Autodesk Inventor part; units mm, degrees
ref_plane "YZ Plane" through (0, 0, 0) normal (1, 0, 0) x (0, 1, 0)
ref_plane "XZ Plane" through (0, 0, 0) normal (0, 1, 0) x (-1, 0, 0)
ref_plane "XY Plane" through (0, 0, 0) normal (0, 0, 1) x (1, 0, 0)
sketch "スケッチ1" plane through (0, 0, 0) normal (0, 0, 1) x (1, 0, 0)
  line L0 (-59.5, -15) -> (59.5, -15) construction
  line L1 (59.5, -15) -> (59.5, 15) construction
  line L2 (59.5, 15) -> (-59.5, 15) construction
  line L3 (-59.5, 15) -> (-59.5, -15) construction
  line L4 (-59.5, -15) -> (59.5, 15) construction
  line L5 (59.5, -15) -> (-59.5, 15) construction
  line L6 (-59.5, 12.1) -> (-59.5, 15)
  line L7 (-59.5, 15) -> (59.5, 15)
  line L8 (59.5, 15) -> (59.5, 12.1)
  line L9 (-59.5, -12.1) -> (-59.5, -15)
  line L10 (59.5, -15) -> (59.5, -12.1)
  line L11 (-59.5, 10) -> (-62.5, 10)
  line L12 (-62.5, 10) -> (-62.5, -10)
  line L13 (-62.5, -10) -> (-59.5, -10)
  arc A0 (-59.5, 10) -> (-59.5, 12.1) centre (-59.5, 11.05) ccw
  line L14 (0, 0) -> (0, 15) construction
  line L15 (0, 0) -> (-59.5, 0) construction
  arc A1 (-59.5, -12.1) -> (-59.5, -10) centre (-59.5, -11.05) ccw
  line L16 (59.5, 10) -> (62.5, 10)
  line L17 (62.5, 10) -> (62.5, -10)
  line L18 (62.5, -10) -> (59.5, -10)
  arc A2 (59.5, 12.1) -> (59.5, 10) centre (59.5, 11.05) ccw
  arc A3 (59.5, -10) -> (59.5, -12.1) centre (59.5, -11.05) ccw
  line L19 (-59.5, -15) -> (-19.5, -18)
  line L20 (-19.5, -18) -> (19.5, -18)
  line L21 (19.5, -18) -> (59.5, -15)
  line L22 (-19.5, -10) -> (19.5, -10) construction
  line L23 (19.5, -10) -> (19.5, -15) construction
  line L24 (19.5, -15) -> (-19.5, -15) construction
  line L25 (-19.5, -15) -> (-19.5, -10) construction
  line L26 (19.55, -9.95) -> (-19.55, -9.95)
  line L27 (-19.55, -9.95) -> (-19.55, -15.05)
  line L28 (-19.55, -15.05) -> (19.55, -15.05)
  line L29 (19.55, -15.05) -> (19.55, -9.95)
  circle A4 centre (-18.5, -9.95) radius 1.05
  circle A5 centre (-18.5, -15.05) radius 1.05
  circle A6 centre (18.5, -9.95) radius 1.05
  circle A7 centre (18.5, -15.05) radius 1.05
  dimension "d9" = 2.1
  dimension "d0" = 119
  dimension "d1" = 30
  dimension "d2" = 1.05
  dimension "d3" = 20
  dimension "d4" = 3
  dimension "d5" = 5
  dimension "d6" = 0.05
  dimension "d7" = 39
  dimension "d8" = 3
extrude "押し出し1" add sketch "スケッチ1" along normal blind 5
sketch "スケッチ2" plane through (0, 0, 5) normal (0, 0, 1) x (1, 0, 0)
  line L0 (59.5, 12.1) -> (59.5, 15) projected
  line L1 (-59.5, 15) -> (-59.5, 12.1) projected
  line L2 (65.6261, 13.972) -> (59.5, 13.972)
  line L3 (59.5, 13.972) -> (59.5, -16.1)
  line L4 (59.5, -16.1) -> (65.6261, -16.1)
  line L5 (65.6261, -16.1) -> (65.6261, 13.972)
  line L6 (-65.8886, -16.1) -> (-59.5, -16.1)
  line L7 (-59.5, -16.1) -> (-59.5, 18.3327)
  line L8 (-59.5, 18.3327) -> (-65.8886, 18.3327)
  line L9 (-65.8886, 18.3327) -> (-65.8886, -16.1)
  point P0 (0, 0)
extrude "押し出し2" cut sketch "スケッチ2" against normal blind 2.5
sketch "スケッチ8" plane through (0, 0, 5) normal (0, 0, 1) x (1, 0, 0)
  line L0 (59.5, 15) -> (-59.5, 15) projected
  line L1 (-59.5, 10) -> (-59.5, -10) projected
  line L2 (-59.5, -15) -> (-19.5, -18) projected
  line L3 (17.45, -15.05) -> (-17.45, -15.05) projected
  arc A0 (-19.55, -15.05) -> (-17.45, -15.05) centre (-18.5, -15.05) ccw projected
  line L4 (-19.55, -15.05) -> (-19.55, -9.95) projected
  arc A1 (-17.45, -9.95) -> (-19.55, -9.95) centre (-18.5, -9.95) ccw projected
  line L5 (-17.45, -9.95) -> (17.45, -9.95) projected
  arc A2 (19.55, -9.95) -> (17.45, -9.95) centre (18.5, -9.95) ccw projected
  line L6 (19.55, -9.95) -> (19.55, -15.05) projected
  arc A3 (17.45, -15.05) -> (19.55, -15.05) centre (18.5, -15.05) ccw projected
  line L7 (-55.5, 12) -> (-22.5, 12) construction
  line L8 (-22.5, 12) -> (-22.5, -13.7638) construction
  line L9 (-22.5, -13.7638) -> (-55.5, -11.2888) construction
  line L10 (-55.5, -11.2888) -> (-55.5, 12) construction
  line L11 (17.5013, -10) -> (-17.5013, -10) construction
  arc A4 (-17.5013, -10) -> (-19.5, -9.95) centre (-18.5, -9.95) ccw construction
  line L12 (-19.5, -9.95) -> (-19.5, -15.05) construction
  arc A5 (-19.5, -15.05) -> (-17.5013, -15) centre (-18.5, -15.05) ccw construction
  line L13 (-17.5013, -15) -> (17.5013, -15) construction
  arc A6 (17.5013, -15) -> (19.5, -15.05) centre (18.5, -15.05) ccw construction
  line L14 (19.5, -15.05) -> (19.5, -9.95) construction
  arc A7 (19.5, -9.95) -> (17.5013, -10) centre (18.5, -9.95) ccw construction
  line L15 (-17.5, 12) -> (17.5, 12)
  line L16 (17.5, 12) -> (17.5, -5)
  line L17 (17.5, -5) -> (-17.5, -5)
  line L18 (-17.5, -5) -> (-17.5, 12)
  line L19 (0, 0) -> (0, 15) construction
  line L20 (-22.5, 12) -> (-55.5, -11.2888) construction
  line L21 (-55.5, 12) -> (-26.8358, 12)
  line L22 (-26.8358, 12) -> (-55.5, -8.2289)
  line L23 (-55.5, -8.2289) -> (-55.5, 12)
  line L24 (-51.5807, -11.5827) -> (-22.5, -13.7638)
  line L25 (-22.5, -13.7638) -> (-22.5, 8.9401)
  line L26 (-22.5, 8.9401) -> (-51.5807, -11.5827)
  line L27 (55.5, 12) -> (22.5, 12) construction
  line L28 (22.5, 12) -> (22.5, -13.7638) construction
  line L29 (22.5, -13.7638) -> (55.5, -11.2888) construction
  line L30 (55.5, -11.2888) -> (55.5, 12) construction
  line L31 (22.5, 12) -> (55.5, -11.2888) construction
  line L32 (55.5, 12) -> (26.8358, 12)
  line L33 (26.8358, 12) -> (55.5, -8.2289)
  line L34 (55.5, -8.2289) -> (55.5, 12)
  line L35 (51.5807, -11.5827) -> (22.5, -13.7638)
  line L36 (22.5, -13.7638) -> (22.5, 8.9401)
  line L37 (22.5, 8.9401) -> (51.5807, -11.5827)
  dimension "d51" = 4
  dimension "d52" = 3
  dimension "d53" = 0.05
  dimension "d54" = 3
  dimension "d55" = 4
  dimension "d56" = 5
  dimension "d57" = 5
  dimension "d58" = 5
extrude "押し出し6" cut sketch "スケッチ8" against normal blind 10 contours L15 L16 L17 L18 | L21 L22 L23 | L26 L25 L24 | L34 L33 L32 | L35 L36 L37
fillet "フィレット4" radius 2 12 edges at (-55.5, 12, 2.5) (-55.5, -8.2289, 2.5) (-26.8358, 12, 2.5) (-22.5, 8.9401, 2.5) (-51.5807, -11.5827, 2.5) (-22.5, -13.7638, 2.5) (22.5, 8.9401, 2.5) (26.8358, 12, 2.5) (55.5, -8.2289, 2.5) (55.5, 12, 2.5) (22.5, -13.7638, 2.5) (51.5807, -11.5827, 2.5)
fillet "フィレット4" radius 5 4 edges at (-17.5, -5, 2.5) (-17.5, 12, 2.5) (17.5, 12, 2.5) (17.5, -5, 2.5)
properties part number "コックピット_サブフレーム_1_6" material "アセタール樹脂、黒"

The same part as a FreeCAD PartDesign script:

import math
import FreeCAD as App
import Part
import Sketcher
Q = App.Units.Quantity


def edges_at(feature, points):
    """Names of the edges that pass closest to the given points."""
    edges = feature.Shape.Edges
    near = lambda p: min(range(len(edges)), key=lambda i: edges[i].distToShape(Part.Vertex(*p))[0])
    return sorted({f"Edge{near(p) + 1}" for p in points})

doc = App.newDocument("Part")
body = doc.addObject("PartDesign::Body", "Body")

# Sketch on XY plane
sketch1 = body.newObject("Sketcher::SketchObject", "Sketch")
sketch1.AttachmentSupport = (doc.getObject("XY_Plane"), [""])
sketch1.MapMode = "FlatFace"
sketch1.addGeometry([
    Part.LineSegment(App.Vector(-59.5, 15, 0), App.Vector(-59.5, 12.1, 0)),  # 0
    Part.ArcOfCircle(Part.Circle(App.Vector(-59.5, 11.1, 0), App.Vector(0, 0, 1), 1.1), math.radians(-90), math.radians(90)),  # 1
    Part.LineSegment(App.Vector(-59.5, 10, 0), App.Vector(-62.5, 10, 0)),  # 2
    Part.LineSegment(App.Vector(-62.5, 10, 0), App.Vector(-62.5, -10, 0)),  # 3
    Part.LineSegment(App.Vector(-62.5, -10, 0), App.Vector(-59.5, -10, 0)),  # 4
    Part.ArcOfCircle(Part.Circle(App.Vector(-59.5, -11.1, 0), App.Vector(0, 0, 1), 1), math.radians(-90), math.radians(90)),  # 5
    Part.LineSegment(App.Vector(-59.5, -12.1, 0), App.Vector(-59.5, -15, 0)),  # 6
    Part.LineSegment(App.Vector(-59.5, -15, 0), App.Vector(-19.5, -18, 0)),  # 7
    Part.LineSegment(App.Vector(-19.5, -18, 0), App.Vector(19.5, -18, 0)),  # 8
    Part.LineSegment(App.Vector(19.5, -18, 0), App.Vector(59.5, -15, 0)),  # 9
    Part.LineSegment(App.Vector(59.5, -15, 0), App.Vector(59.5, -12.1, 0)),  # 10
    Part.ArcOfCircle(Part.Circle(App.Vector(59.5, -11.1, 0), App.Vector(0, 0, 1), 1.1), math.radians(90), math.radians(270)),  # 11
    Part.LineSegment(App.Vector(59.5, -10, 0), App.Vector(62.5, -10, 0)),  # 12
    Part.LineSegment(App.Vector(62.5, -10, 0), App.Vector(62.5, 10, 0)),  # 13
    Part.LineSegment(App.Vector(62.5, 10, 0), App.Vector(59.5, 10, 0)),  # 14
    Part.ArcOfCircle(Part.Circle(App.Vector(59.5, 11.1, 0), App.Vector(0, 0, 1), 1), math.radians(90), math.radians(270)),  # 15
    Part.LineSegment(App.Vector(59.5, 12.1, 0), App.Vector(59.5, 15, 0)),  # 16
    Part.LineSegment(App.Vector(59.5, 15, 0), App.Vector(-59.5, 15, 0)),  # 17
    Part.ArcOfCircle(Part.Circle(App.Vector(-18.5, -9.9, 0), App.Vector(0, 0, 1), 1.1), math.radians(0), math.radians(180)),  # 18
    Part.LineSegment(App.Vector(-17.4, -9.9, 0), App.Vector(17.4, -9.9, 0)),  # 19
    Part.ArcOfCircle(Part.Circle(App.Vector(18.5, -9.9, 0), App.Vector(0, 0, 1), 1.1), math.radians(0), math.radians(180)),  # 20
    Part.LineSegment(App.Vector(19.6, -9.9, 0), App.Vector(19.6, -15.1, 0)),  # 21
    Part.ArcOfCircle(Part.Circle(App.Vector(18.5, -15.1, 0), App.Vector(0, 0, 1), 1.1), math.radians(180), math.radians(360)),  # 22
    Part.LineSegment(App.Vector(17.4, -15.1, 0), App.Vector(-17.4, -15.1, 0)),  # 23
    Part.ArcOfCircle(Part.Circle(App.Vector(-18.5, -15.1, 0), App.Vector(0, 0, 1), 1.1), math.radians(180), math.radians(360)),  # 24
    Part.LineSegment(App.Vector(-19.6, -15.1, 0), App.Vector(-19.6, -9.9, 0)),  # 25
], False)
sketch1.addConstraint([
    Sketcher.Constraint("Coincident", 0, 2, 1, 2),
    Sketcher.Constraint("Tangent", 1, 1, 2, 1),
    Sketcher.Constraint("Coincident", 2, 2, 3, 1),
    Sketcher.Constraint("Coincident", 3, 2, 4, 1),
    Sketcher.Constraint("Tangent", 4, 2, 5, 2),
    Sketcher.Constraint("Coincident", 5, 1, 6, 1),
    Sketcher.Constraint("Coincident", 6, 2, 7, 1),
    Sketcher.Constraint("Coincident", 7, 2, 8, 1),
    Sketcher.Constraint("Coincident", 8, 2, 9, 1),
    Sketcher.Constraint("Coincident", 9, 2, 10, 1),
    Sketcher.Constraint("Coincident", 10, 2, 11, 2),
    Sketcher.Constraint("Tangent", 11, 1, 12, 1),
    Sketcher.Constraint("Coincident", 12, 2, 13, 1),
    Sketcher.Constraint("Coincident", 13, 2, 14, 1),
    Sketcher.Constraint("Tangent", 14, 2, 15, 2),
    Sketcher.Constraint("Coincident", 15, 1, 16, 1),
    Sketcher.Constraint("Coincident", 16, 2, 17, 1),
    Sketcher.Constraint("Coincident", 17, 2, 0, 1),
    Sketcher.Constraint("Coincident", 18, 1, 19, 1),
    Sketcher.Constraint("Coincident", 19, 2, 20, 2),
    Sketcher.Constraint("Tangent", 20, 1, 21, 1),
    Sketcher.Constraint("Tangent", 21, 2, 22, 2),
    Sketcher.Constraint("Coincident", 22, 1, 23, 1),
    Sketcher.Constraint("Coincident", 23, 2, 24, 2),
    Sketcher.Constraint("Tangent", 24, 1, 25, 1),
    Sketcher.Constraint("Tangent", 25, 2, 18, 2),
    Sketcher.Constraint("Vertical", 0),
    Sketcher.Constraint("Horizontal", 2),
    Sketcher.Constraint("Vertical", 3),
    Sketcher.Constraint("Horizontal", 4),
    Sketcher.Constraint("Vertical", 6),
    Sketcher.Constraint("Horizontal", 8),
    Sketcher.Constraint("Vertical", 10),
    Sketcher.Constraint("Horizontal", 12),
    Sketcher.Constraint("Vertical", 13),
    Sketcher.Constraint("Horizontal", 14),
    Sketcher.Constraint("Vertical", 16),
    Sketcher.Constraint("Horizontal", 17),
    Sketcher.Constraint("Horizontal", 19),
    Sketcher.Constraint("Vertical", 21),
    Sketcher.Constraint("Horizontal", 23),
    Sketcher.Constraint("Vertical", 25),
    Sketcher.Constraint("Equal", 1, 5),
    Sketcher.Constraint("Equal", 5, 11),
    Sketcher.Constraint("Equal", 11, 15),
    Sketcher.Constraint("Equal", 15, 18),
    Sketcher.Constraint("Equal", 18, 20),
    Sketcher.Constraint("Equal", 20, 22),
    Sketcher.Constraint("Equal", 22, 24),
    Sketcher.Constraint("Symmetric", 1, 3, 11, 3, -1, 1),
    Sketcher.Constraint("Symmetric", 5, 3, 15, 3, -1, 1),
    Sketcher.Constraint("Symmetric", 6, 2, 16, 2, -1, 1),
    Sketcher.Constraint("Symmetric", 9, 2, 17, 2, -1, 1),
    Sketcher.Constraint("Symmetric", 5, 3, 11, 3, -2),
    Sketcher.Constraint("Symmetric", 18, 3, 20, 3, -2),
    Sketcher.Constraint("Horizontal", 22, 3, 24, 3),
    Sketcher.Constraint("Horizontal", 20, 3, 18, 1),
    Sketcher.Constraint("Horizontal", 21, 2, 22, 1),
    Sketcher.Constraint("Vertical", 5, 3, 0, 2),
    Sketcher.Constraint("Vertical", 4, 2, 5, 1),
    Sketcher.Constraint("Equal", 4, 12),
    Sketcher.Constraint("Equal", 7, 9),
    Sketcher.Constraint("DistanceX", 2, 2, 2, 1, Q("3 mm")),
    Sketcher.Constraint("DistanceX", 8, 1, 8, 2, Q("39 mm")),
    Sketcher.Constraint("DistanceX", 17, 2, 17, 1, Q("119 mm")),
    Sketcher.Constraint("DistanceY", 3, 2, 3, 1, Q("20 mm")),
    Sketcher.Constraint("Radius", 1, Q("1.05 mm")),
    Sketcher.Constraint("DistanceY", 6, 2, 4, 2, Q("5 mm")),
    Sketcher.Constraint("DistanceY", 7, 2, 6, 2, Q("3 mm")),
    Sketcher.Constraint("DistanceY", 22, 3, 9, 2, Q("0.05 mm")),
    Sketcher.Constraint("DistanceX", 8, 2, 20, 1, Q("0.05 mm")),
    Sketcher.Constraint("DistanceY", 21, 2, 21, 1, Q("5.1 mm")),
])
pad1 = body.newObject("PartDesign::Pad", "Pad")
pad1.Profile = sketch1
pad1.Length = 5

# Sketch on XY plane
sketch2 = body.newObject("Sketcher::SketchObject", "Sketch001")
sketch2.AttachmentSupport = (doc.getObject("XY_Plane"), [""])
sketch2.MapMode = "FlatFace"
sketch2.AttachmentOffset = App.Placement(App.Vector(0, 0, 5), App.Rotation())
sketch2.addGeometry([
    Part.LineSegment(App.Vector(60, 14, 0), App.Vector(60, -16, 0)),  # 0
    Part.LineSegment(App.Vector(60, -16, 0), App.Vector(66, -16, 0)),  # 1
    Part.LineSegment(App.Vector(66, -16, 0), App.Vector(66, 14, 0)),  # 2
    Part.LineSegment(App.Vector(66, 14, 0), App.Vector(60, 14, 0)),  # 3
    Part.LineSegment(App.Vector(-60, -16, 0), App.Vector(-60, 18, 0)),  # 4
    Part.LineSegment(App.Vector(-60, 18, 0), App.Vector(-66, 18, 0)),  # 5
    Part.LineSegment(App.Vector(-66, 18, 0), App.Vector(-66, -16, 0)),  # 6
    Part.LineSegment(App.Vector(-66, -16, 0), App.Vector(-60, -16, 0)),  # 7
], False)
sketch2.addConstraint([
    Sketcher.Constraint("Coincident", 0, 2, 1, 1),
    Sketcher.Constraint("Coincident", 1, 2, 2, 1),
    Sketcher.Constraint("Coincident", 2, 2, 3, 1),
    Sketcher.Constraint("Coincident", 3, 2, 0, 1),
    Sketcher.Constraint("Coincident", 4, 2, 5, 1),
    Sketcher.Constraint("Coincident", 5, 2, 6, 1),
    Sketcher.Constraint("Coincident", 6, 2, 7, 1),
    Sketcher.Constraint("Coincident", 7, 2, 4, 1),
    Sketcher.Constraint("Vertical", 0),
    Sketcher.Constraint("Horizontal", 1),
    Sketcher.Constraint("Vertical", 2),
    Sketcher.Constraint("Horizontal", 3),
    Sketcher.Constraint("Vertical", 4),
    Sketcher.Constraint("Horizontal", 5),
    Sketcher.Constraint("Vertical", 6),
    Sketcher.Constraint("Horizontal", 7),
    Sketcher.Constraint("Symmetric", 0, 2, 7, 2, -2),
    Sketcher.Constraint("DistanceX", 4, 2, 3, 2, Q("119 mm")),
    Sketcher.Constraint("DistanceY", 0, 2, -1, 1, Q("16.1 mm")),
    Sketcher.Constraint("DistanceX", 1, 1, 1, 2, Q("6.126 mm")),
    Sketcher.Constraint("DistanceY", 0, 2, 0, 1, Q("30.072 mm")),
    Sketcher.Constraint("DistanceX", 5, 2, 5, 1, Q("6.3886 mm")),
    Sketcher.Constraint("DistanceY", 4, 1, 4, 2, Q("34.4327 mm")),
])
pocket1 = body.newObject("PartDesign::Pocket", "Pocket")
pocket1.Profile = sketch2
pocket1.Length = 2.5

# Sketch on XY plane
sketch3 = body.newObject("Sketcher::SketchObject", "Sketch002")
sketch3.AttachmentSupport = (doc.getObject("XY_Plane"), [""])
sketch3.MapMode = "FlatFace"
sketch3.AttachmentOffset = App.Placement(App.Vector(0, 0, 5), App.Rotation())
sketch3.addGeometry([
    Part.LineSegment(App.Vector(18, 12, 0), App.Vector(-18, 12, 0)),  # 0
    Part.LineSegment(App.Vector(-18, 12, 0), App.Vector(-18, -5, 0)),  # 1
    Part.LineSegment(App.Vector(-18, -5, 0), App.Vector(18, -5, 0)),  # 2
    Part.LineSegment(App.Vector(18, -5, 0), App.Vector(18, 12, 0)),  # 3
    Part.LineSegment(App.Vector(-27, 12, 0), App.Vector(-56, 12, 0)),  # 4
    Part.LineSegment(App.Vector(-56, 12, 0), App.Vector(-56, -8, 0)),  # 5
    Part.LineSegment(App.Vector(-56, -8, 0), App.Vector(-27, 12, 0)),  # 6
    Part.LineSegment(App.Vector(-22, 9, 0), App.Vector(-52, -12, 0)),  # 7
    Part.LineSegment(App.Vector(-52, -12, 0), App.Vector(-22, -14, 0)),  # 8
    Part.LineSegment(App.Vector(-22, -14, 0), App.Vector(-22, 9, 0)),  # 9
    Part.LineSegment(App.Vector(56, -8, 0), App.Vector(56, 12, 0)),  # 10
    Part.LineSegment(App.Vector(56, 12, 0), App.Vector(27, 12, 0)),  # 11
    Part.LineSegment(App.Vector(27, 12, 0), App.Vector(56, -8, 0)),  # 12
    Part.LineSegment(App.Vector(22, -14, 0), App.Vector(52, -12, 0)),  # 13
    Part.LineSegment(App.Vector(52, -12, 0), App.Vector(22, 9, 0)),  # 14
    Part.LineSegment(App.Vector(22, 9, 0), App.Vector(22, -14, 0)),  # 15
], False)
sketch3.addConstraint([
    Sketcher.Constraint("Coincident", 0, 2, 1, 1),
    Sketcher.Constraint("Coincident", 1, 2, 2, 1),
    Sketcher.Constraint("Coincident", 2, 2, 3, 1),
    Sketcher.Constraint("Coincident", 3, 2, 0, 1),
    Sketcher.Constraint("Coincident", 4, 2, 5, 1),
    Sketcher.Constraint("Coincident", 5, 2, 6, 1),
    Sketcher.Constraint("Coincident", 6, 2, 4, 1),
    Sketcher.Constraint("Coincident", 7, 2, 8, 1),
    Sketcher.Constraint("Coincident", 8, 2, 9, 1),
    Sketcher.Constraint("Coincident", 9, 2, 7, 1),
    Sketcher.Constraint("Coincident", 10, 2, 11, 1),
    Sketcher.Constraint("Coincident", 11, 2, 12, 1),
    Sketcher.Constraint("Coincident", 12, 2, 10, 1),
    Sketcher.Constraint("Coincident", 13, 2, 14, 1),
    Sketcher.Constraint("Coincident", 14, 2, 15, 1),
    Sketcher.Constraint("Coincident", 15, 2, 13, 1),
    Sketcher.Constraint("Horizontal", 0),
    Sketcher.Constraint("Vertical", 1),
    Sketcher.Constraint("Horizontal", 2),
    Sketcher.Constraint("Vertical", 3),
    Sketcher.Constraint("Horizontal", 4),
    Sketcher.Constraint("Vertical", 5),
    Sketcher.Constraint("Vertical", 9),
    Sketcher.Constraint("Vertical", 10),
    Sketcher.Constraint("Horizontal", 11),
    Sketcher.Constraint("Vertical", 15),
    Sketcher.Constraint("Symmetric", 4, 2, 10, 2, -2),
    Sketcher.Constraint("Symmetric", 7, 2, 13, 2, -2),
    Sketcher.Constraint("Symmetric", 9, 2, 14, 2, -2),
    Sketcher.Constraint("Parallel", 6, 7),
    Sketcher.Constraint("Parallel", 12, 14),
    Sketcher.Constraint("Horizontal", 3, 2, 4, 2),
    Sketcher.Constraint("Horizontal", 5, 2, 12, 2),
    Sketcher.Constraint("Horizontal", 8, 2, 15, 2),
    Sketcher.Constraint("DistanceY", 1, 2, -1, 1, Q("5 mm")),
    Sketcher.Constraint("DistanceX", 8, 2, 1, 2, Q("5 mm")),
    Sketcher.Constraint("DistanceX", 3, 2, 14, 2, Q("5 mm")),
    Sketcher.Constraint("DistanceX", 0, 2, 0, 1, Q("35 mm")),
    Sketcher.Constraint("DistanceY", 1, 2, 1, 1, Q("17 mm")),
    Sketcher.Constraint("DistanceX", 4, 2, 0, 2, Q("38 mm")),
    Sketcher.Constraint("Angle", 8, Q("-4.2892 deg")),
    Sketcher.Constraint("DistanceY", 5, 2, 5, 1, Q("20.229 mm")),
    Sketcher.Constraint("DistanceY", 9, 1, 9, 2, Q("22.704 mm")),
    Sketcher.Constraint("DistanceY", -1, 1, 9, 2, Q("8.94 mm")),
    Sketcher.Constraint("DistanceX", 4, 2, 4, 1, Q("28.6642 mm")),
])
pocket2 = body.newObject("PartDesign::Pocket", "Pocket001")
pocket2.Profile = sketch3
pocket2.Length = 10
doc.recompute()

fillet = body.newObject("PartDesign::Fillet", "Fillet")
fillet.Base = (pocket2, edges_at(pocket2, [
    (-55.5, 12, 2.5),
    (-55.5, -8.229, 2.5),
    (-26.836, 12, 2.5),
    (-22.5, 8.94, 2.5),
    (-51.581, -11.583, 2.5),
    (-22.5, -13.764, 2.5),
    (22.5, 8.94, 2.5),
    (26.836, 12, 2.5),
    (55.5, -8.229, 2.5),
    (55.5, 12, 2.5),
    (22.5, -13.764, 2.5),
    (51.581, -11.583, 2.5),
]))
fillet.Radius = 2
doc.recompute()

fillet2 = body.newObject("PartDesign::Fillet", "Fillet001")
fillet2.Base = (fillet, edges_at(fillet, [
    (-17.5, -5, 2.5),
    (-17.5, 12, 2.5),
    (17.5, 12, 2.5),
    (17.5, -5, 2.5),
]))
fillet2.Radius = 5

doc.recompute()
